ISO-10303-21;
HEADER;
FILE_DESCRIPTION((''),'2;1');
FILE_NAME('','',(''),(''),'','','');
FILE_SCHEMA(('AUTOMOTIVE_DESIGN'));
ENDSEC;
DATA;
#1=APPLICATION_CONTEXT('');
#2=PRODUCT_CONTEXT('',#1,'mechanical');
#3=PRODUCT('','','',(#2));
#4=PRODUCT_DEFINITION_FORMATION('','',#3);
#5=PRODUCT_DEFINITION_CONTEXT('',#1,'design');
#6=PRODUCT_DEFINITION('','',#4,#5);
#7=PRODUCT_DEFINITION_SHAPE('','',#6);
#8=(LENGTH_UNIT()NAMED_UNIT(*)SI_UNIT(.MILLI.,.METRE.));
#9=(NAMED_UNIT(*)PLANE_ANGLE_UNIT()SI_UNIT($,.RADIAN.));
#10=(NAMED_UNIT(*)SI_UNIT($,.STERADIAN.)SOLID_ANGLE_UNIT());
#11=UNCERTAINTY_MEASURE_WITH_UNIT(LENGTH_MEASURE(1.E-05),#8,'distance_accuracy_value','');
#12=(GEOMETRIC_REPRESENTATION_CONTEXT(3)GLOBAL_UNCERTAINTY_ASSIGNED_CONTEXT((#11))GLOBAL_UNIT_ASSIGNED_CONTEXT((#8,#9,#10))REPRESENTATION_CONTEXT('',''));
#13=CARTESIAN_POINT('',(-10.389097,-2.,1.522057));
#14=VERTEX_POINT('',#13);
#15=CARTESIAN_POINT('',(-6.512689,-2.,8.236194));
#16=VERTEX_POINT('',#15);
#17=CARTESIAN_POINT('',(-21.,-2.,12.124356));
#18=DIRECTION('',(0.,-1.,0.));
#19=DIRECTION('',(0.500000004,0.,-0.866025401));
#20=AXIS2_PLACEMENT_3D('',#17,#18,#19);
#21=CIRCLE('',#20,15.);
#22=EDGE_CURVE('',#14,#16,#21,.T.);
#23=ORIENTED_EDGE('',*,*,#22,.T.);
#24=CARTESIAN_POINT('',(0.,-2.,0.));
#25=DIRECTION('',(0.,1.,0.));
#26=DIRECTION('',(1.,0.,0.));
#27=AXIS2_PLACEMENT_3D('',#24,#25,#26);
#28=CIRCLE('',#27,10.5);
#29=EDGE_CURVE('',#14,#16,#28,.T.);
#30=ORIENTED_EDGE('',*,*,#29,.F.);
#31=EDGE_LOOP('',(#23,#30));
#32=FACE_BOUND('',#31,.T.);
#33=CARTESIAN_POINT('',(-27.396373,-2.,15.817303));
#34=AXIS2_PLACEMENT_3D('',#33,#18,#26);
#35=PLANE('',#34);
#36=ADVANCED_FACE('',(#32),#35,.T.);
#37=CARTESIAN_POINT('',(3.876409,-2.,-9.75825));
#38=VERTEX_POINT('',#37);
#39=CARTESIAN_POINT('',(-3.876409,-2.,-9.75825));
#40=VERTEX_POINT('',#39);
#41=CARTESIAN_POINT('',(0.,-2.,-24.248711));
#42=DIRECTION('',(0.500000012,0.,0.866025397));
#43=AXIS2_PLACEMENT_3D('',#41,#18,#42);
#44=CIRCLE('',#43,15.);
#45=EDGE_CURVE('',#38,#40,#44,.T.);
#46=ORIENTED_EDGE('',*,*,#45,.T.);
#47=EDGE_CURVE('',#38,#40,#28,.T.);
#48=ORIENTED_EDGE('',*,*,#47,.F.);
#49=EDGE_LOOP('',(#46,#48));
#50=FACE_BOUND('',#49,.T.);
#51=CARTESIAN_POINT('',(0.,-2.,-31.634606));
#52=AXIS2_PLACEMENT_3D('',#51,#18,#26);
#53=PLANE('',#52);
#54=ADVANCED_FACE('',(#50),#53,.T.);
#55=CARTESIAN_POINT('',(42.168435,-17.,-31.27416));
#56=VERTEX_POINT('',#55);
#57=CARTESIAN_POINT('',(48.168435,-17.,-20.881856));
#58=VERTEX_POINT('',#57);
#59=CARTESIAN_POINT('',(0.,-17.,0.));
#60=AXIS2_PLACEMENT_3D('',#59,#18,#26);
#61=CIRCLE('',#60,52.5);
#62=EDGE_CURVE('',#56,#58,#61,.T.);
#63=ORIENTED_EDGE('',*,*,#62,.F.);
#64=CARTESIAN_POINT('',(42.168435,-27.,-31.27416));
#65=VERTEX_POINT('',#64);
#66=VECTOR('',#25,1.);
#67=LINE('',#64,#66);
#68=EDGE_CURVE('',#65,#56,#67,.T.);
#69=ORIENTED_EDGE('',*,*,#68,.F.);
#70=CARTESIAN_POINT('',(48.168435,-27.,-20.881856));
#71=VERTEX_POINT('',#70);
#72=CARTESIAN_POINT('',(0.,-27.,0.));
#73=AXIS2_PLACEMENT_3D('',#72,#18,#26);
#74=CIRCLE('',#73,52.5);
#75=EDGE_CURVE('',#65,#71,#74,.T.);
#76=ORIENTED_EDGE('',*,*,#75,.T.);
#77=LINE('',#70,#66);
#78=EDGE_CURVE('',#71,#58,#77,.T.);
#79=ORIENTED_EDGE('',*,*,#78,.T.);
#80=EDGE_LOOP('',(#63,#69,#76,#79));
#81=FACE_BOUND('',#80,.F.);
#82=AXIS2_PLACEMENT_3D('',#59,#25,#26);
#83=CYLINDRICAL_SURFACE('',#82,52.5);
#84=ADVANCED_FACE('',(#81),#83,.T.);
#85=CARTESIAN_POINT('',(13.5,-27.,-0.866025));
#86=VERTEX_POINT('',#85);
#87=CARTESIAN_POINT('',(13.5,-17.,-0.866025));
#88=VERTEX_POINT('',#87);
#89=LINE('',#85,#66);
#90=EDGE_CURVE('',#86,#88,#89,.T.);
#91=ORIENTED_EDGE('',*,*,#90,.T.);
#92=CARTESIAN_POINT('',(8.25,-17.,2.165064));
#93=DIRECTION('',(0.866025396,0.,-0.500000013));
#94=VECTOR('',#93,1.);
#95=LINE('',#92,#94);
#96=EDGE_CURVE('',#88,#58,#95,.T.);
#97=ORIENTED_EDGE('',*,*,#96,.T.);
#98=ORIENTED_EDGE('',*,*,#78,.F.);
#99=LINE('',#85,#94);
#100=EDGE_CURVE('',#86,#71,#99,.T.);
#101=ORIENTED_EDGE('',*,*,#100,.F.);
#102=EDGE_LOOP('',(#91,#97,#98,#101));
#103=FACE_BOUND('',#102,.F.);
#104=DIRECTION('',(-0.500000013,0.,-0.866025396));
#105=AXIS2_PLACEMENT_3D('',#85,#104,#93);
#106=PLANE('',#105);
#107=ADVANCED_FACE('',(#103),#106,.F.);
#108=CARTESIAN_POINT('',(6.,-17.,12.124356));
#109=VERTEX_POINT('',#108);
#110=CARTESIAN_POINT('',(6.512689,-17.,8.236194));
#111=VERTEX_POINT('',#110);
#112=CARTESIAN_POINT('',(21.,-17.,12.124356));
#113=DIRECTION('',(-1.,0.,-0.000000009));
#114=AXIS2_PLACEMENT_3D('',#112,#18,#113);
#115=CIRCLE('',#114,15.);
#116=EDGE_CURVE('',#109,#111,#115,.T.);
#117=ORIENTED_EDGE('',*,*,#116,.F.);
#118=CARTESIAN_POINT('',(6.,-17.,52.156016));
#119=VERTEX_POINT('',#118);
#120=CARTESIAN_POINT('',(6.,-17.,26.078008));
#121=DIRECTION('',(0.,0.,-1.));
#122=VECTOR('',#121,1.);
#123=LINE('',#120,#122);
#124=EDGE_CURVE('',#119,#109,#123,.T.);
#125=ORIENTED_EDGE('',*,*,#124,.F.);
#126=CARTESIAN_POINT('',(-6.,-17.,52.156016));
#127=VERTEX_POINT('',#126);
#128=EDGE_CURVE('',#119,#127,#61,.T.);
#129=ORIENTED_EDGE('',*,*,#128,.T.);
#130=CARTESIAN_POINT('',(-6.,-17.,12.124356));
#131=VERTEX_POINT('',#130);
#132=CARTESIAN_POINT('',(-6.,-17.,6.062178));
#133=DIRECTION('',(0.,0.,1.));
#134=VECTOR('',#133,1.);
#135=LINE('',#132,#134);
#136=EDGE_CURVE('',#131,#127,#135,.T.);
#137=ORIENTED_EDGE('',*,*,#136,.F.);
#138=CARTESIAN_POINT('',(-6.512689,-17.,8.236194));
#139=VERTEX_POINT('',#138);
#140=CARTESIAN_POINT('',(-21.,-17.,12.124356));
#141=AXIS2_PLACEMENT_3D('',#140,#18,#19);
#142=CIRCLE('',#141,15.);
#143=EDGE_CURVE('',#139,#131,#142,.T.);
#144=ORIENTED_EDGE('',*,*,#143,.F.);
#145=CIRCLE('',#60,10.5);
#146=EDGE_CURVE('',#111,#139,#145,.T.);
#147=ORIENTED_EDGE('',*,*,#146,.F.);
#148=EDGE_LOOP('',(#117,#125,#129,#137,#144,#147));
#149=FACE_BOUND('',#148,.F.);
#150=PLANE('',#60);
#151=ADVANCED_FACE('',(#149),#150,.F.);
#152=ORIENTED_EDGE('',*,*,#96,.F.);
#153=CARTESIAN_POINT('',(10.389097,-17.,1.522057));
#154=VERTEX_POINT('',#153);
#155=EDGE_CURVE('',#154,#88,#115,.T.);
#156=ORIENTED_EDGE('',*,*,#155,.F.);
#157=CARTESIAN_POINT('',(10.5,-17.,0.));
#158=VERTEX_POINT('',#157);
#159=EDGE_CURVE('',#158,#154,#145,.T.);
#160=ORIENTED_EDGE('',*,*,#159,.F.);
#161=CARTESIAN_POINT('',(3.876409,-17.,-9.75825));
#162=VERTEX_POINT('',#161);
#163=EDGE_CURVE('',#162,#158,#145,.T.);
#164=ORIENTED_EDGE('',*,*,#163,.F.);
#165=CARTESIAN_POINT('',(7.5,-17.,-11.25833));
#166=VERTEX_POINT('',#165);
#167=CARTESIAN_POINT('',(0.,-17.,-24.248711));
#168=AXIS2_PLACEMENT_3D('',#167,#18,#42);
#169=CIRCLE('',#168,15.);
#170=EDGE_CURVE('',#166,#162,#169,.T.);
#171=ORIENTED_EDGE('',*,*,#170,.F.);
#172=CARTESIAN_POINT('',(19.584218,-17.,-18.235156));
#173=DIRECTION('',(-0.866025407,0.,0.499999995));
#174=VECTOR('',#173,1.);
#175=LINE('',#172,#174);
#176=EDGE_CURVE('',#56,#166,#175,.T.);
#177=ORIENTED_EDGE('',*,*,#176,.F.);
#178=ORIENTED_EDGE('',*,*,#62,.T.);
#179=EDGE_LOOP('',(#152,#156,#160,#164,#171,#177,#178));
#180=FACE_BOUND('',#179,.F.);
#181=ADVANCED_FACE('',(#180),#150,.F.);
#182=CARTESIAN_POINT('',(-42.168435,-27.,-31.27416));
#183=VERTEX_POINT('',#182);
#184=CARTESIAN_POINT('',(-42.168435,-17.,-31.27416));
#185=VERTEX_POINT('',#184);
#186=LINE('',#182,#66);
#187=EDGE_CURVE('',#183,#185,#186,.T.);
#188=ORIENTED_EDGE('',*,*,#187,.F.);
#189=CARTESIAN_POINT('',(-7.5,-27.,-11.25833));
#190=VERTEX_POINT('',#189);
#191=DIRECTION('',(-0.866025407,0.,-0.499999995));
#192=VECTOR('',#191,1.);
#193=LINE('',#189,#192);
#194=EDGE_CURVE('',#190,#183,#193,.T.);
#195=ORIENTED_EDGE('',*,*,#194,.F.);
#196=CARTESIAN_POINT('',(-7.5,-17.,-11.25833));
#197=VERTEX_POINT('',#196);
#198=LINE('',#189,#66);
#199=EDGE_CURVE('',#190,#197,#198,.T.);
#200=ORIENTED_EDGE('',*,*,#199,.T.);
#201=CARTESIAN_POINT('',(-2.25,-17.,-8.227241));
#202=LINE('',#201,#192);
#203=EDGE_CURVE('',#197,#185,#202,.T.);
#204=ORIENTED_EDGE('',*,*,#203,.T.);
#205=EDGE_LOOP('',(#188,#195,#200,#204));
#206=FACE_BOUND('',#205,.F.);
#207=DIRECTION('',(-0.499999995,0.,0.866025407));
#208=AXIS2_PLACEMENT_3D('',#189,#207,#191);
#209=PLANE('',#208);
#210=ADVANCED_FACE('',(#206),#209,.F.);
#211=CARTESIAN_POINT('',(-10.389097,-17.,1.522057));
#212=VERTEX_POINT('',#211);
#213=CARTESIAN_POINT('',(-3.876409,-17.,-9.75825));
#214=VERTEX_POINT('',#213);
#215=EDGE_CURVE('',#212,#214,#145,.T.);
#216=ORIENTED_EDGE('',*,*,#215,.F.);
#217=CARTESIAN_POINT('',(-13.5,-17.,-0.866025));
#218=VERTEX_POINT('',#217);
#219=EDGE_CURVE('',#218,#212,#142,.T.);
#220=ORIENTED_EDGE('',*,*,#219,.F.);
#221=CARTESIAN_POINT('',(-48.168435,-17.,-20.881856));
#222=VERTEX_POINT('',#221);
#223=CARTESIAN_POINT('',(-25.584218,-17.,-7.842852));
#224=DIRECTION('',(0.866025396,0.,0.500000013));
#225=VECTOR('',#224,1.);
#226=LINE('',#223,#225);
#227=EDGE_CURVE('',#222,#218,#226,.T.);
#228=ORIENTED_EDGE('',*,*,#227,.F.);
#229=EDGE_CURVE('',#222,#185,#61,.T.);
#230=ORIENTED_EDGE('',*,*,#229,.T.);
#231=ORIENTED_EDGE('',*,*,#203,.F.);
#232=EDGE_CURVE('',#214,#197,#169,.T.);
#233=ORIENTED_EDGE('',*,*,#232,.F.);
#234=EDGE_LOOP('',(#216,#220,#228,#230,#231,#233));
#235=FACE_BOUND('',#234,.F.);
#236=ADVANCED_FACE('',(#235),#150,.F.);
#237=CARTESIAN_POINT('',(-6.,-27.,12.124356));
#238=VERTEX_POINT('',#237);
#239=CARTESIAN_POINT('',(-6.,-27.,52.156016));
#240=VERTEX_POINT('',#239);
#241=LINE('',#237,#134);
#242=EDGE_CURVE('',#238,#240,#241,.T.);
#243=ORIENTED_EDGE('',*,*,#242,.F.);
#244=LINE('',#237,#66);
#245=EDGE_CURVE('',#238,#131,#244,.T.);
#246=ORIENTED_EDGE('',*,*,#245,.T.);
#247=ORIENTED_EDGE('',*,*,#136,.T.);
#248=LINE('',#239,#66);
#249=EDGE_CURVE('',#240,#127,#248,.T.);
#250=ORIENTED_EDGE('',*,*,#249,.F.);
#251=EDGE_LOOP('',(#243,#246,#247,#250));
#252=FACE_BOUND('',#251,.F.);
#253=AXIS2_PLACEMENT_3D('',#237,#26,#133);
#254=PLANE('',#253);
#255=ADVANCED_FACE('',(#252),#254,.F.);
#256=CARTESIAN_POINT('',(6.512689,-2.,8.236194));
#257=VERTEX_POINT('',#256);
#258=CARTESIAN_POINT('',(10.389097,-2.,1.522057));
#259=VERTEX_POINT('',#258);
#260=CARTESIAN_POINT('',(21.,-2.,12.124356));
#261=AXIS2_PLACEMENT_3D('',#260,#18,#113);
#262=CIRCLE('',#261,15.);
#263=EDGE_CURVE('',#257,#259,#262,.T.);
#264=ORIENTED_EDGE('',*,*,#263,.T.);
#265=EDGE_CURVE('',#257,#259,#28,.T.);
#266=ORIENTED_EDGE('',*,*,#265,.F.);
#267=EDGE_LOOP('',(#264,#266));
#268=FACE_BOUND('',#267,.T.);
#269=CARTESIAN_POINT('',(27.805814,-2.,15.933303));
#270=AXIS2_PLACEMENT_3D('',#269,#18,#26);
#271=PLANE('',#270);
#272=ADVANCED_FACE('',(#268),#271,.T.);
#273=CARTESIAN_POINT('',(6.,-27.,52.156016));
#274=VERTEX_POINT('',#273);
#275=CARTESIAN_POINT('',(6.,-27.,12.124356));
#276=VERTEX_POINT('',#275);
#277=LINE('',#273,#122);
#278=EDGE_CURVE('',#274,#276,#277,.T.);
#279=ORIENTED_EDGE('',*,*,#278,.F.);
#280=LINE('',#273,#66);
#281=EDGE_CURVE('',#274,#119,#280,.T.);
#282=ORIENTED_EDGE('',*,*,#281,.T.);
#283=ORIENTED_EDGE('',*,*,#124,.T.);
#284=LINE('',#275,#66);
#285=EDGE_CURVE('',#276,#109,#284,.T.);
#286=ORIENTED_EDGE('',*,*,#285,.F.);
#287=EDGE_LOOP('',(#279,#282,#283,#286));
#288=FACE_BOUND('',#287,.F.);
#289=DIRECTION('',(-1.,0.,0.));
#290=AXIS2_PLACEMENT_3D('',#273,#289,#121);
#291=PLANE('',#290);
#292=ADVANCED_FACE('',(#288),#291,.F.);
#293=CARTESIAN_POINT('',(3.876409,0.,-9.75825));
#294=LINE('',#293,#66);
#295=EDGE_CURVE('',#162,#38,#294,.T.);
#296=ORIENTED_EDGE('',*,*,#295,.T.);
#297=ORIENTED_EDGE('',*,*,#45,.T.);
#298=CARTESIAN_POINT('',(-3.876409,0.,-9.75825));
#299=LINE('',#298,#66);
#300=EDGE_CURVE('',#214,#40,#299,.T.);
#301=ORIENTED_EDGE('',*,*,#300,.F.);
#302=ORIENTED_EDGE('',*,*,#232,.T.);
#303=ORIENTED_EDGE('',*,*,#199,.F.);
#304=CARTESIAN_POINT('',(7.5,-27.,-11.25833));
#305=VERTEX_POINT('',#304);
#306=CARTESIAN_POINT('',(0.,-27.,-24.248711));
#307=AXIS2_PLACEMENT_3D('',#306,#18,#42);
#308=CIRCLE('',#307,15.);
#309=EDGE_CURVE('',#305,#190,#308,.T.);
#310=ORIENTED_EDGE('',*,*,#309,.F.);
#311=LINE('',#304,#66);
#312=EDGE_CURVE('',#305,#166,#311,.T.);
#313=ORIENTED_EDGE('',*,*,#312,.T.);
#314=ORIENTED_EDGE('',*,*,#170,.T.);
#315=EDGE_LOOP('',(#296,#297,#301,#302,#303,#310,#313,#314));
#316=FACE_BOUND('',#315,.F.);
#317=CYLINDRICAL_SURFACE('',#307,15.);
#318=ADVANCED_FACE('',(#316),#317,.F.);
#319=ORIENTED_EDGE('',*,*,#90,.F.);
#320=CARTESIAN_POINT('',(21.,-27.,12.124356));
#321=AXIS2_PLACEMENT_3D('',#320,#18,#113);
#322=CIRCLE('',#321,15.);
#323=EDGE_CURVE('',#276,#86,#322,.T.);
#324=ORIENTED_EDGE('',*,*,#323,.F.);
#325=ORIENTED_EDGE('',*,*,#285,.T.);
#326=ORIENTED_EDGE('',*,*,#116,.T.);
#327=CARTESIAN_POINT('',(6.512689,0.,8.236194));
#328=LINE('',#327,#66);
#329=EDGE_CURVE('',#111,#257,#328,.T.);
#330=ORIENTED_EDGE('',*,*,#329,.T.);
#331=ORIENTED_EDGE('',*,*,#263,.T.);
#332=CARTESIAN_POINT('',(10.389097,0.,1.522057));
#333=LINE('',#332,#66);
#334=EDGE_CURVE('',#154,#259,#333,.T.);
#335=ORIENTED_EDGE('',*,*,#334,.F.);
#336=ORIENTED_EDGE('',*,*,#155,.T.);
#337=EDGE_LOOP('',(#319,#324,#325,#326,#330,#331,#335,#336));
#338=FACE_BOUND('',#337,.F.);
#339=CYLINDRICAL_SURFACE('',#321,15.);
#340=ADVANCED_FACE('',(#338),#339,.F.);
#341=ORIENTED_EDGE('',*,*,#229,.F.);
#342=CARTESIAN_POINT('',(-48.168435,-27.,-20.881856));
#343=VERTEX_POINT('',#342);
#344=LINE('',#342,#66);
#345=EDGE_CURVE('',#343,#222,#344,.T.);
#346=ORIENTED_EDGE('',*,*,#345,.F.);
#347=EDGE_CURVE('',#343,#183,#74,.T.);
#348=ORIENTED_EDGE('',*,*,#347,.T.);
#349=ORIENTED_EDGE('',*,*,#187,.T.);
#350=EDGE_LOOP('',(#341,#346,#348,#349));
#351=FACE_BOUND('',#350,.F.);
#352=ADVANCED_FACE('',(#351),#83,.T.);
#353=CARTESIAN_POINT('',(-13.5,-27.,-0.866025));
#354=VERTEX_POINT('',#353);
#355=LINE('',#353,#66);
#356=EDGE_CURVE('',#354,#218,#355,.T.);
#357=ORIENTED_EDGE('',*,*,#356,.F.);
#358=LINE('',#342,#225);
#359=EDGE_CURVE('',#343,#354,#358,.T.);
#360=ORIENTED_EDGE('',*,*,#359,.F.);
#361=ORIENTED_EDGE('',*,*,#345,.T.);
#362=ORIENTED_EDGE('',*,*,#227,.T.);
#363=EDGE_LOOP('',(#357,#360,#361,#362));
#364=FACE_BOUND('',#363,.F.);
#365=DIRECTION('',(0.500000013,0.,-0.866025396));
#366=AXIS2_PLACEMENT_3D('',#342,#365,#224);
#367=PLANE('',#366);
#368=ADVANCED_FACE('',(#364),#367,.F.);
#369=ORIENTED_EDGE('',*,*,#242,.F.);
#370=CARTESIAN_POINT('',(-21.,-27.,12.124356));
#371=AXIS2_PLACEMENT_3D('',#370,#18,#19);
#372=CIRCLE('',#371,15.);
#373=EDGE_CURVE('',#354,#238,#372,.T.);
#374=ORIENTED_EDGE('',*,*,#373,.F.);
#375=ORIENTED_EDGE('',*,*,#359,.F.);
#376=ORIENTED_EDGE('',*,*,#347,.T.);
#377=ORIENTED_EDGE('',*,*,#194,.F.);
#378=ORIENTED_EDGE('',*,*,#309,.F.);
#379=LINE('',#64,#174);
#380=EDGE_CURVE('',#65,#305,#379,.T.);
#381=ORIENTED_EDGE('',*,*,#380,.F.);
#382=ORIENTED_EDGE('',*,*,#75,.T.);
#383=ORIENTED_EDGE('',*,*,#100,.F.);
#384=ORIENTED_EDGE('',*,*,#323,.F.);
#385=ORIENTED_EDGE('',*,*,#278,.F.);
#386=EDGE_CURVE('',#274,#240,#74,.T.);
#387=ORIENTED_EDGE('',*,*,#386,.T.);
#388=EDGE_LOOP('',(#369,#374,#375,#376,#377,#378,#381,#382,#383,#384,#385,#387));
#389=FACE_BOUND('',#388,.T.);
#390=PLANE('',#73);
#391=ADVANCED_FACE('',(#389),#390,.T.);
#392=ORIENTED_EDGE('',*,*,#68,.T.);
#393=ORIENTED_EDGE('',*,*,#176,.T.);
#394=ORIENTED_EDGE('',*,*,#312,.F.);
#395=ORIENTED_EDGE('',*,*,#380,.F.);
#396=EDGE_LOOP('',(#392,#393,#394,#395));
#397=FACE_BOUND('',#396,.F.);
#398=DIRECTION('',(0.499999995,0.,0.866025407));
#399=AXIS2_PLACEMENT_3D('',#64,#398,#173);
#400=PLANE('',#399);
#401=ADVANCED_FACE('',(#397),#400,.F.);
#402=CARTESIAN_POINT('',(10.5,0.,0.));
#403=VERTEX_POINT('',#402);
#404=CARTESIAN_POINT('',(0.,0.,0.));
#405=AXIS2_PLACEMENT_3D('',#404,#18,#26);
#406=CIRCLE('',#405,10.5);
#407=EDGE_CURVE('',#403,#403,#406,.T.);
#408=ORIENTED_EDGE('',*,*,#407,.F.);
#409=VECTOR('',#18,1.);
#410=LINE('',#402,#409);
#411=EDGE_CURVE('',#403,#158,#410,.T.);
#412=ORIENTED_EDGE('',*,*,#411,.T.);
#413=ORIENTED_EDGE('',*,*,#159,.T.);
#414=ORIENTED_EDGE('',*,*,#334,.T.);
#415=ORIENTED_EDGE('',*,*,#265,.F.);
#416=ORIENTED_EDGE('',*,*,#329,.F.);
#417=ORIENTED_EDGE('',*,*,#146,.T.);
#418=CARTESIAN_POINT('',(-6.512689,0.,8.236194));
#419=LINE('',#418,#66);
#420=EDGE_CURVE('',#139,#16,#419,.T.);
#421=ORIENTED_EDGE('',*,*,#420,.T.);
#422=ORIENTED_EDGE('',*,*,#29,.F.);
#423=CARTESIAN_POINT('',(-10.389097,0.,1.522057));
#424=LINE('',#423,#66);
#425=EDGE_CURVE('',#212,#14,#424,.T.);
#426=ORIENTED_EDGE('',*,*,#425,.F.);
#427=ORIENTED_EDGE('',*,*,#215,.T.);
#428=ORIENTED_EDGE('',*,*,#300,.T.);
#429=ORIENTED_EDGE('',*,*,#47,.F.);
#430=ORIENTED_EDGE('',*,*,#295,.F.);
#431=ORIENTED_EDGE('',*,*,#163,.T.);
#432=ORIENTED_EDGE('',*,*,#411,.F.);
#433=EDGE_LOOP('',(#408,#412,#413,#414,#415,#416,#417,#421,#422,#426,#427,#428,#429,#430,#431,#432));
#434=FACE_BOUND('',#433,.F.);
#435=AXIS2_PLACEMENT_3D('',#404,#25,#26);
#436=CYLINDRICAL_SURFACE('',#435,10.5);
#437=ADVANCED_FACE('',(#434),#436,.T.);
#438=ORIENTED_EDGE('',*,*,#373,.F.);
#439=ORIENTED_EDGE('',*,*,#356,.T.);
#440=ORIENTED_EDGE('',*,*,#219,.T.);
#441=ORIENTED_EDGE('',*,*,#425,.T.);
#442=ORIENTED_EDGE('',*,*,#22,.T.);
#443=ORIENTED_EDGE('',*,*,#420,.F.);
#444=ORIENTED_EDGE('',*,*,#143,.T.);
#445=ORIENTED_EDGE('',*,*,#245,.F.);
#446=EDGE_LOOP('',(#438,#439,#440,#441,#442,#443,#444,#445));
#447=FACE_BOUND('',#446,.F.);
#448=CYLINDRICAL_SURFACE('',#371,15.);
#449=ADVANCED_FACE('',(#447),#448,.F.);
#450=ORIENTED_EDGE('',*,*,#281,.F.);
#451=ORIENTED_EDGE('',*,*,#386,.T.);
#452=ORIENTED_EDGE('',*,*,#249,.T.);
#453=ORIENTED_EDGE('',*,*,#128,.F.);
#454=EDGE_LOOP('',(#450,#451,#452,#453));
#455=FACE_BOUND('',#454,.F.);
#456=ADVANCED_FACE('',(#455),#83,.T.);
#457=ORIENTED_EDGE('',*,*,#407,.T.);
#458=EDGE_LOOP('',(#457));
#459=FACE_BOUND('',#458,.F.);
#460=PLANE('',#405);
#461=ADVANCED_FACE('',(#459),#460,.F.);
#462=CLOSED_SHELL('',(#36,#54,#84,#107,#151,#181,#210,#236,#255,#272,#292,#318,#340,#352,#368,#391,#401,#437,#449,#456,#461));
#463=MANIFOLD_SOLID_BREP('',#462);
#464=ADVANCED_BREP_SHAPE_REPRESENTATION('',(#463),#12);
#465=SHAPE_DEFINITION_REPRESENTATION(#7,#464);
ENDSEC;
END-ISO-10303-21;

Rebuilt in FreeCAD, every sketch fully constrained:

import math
import FreeCAD as App
import Part
import Sketcher
from FreeCAD import Vector
Q = App.Units.Quantity

doc = App.newDocument("Part")
body = doc.addObject("PartDesign::Body", "Body")

# Sketch on XZ plane
sketch1 = doc.addObject("Sketcher::SketchObject", "Sketch")
body.addObject(sketch1)
sketch1.AttachmentSupport = (doc.XZ_Plane, [""])
sketch1.MapMode = "FlatFace"
sketch1.addGeometry(Part.Circle(Vector(0, 0, 0), Vector(0, 0, 1), 10), False)
sketch1.addConstraint([
    Sketcher.Constraint("Coincident", 0, 3, -1, 1),
    Sketcher.Constraint("Diameter", 0, 21.0),
])
pad1 = doc.addObject("PartDesign::Pad", "Pad")
body.addObject(pad1)
pad1.Profile = sketch1
pad1.Length = 17

# Sketch on XZ plane
sketch2 = doc.addObject("Sketcher::SketchObject", "Sketch001")
body.addObject(sketch2)
sketch2.AttachmentSupport = (doc.XZ_Plane, [""])
sketch2.MapMode = "FlatFace"
sketch2.AttachmentOffset = App.Placement(Vector(0, 0, 17), App.Rotation())
sketch2.addGeometry(Part.Circle(Vector(0, 0, 0), Vector(0, 0, 1), 52), False)
sketch2.addConstraint([
    Sketcher.Constraint("Coincident", 0, 3, -1, 1),
    Sketcher.Constraint("Diameter", 0, 105.0),
])
pad2 = doc.addObject("PartDesign::Pad", "Pad001")
body.addObject(pad2)
pad2.Profile = sketch2
pad2.Length = 10

# Sketch on XZ plane
sketch3 = doc.addObject("Sketcher::SketchObject", "Sketch002")
body.addObject(sketch3)
sketch3.AttachmentSupport = (doc.XZ_Plane, [""])
sketch3.MapMode = "FlatFace"
sketch3.AttachmentOffset = App.Placement(Vector(0, 0, 27), App.Rotation())
sketch3.addGeometry([
    Part.ArcOfCircle(Part.Circle(Vector(-21, 12, 0), Vector(0, 0, 1), 15), math.radians(-60), math.radians(0)),  # 0
    Part.LineSegment(Vector(-6, 12, 0), Vector(-6, 52, 0)),  # 1
    Part.ArcOfCircle(Part.Circle(Vector(0, 0, 0), Vector(0, 0, 1), 53), math.radians(97), math.radians(203)),  # 2
    Part.LineSegment(Vector(-48, -21, 0), Vector(-14, -1, 0)),  # 3
    Part.ArcOfCircle(Part.Circle(Vector(0, 0, 0), Vector(0, 0, 1), 53), math.radians(0), math.radians(83)),  # 4
    Part.LineSegment(Vector(6, 52, 0), Vector(6, 12, 0)),  # 5
    Part.ArcOfCircle(Part.Circle(Vector(21, 12, 0), Vector(0, 0, 1), 15), math.radians(-180), math.radians(-120)),  # 6
    Part.LineSegment(Vector(14, -1, 0), Vector(48, -21, 0)),  # 7
    Part.ArcOfCircle(Part.Circle(Vector(0, 0, 0), Vector(0, 0, 1), 53), math.radians(-23), math.radians(0)),  # 8
    Part.LineSegment(Vector(-8, -11, 0), Vector(-42, -31, 0)),  # 9
    Part.ArcOfCircle(Part.Circle(Vector(0, 0, 0), Vector(0, 0, 1), 52), math.radians(-143), math.radians(-37)),  # 10
    Part.LineSegment(Vector(42, -31, 0), Vector(8, -11, 0)),  # 11
    Part.ArcOfCircle(Part.Circle(Vector(0, -24, 0), Vector(0, 0, 1), 15), math.radians(60), math.radians(120)),  # 12
], False)
sketch3.addConstraint([
    Sketcher.Constraint("Tangent", 0, 2, 1, 1),
    Sketcher.Constraint("Coincident", 1, 2, 2, 1),
    Sketcher.Constraint("Coincident", 2, 2, 3, 1),
    Sketcher.Constraint("Tangent", 3, 2, 0, 1),
    Sketcher.Constraint("Coincident", 4, 2, 5, 1),
    Sketcher.Constraint("Tangent", 5, 2, 6, 1),
    Sketcher.Constraint("Tangent", 6, 2, 7, 1),
    Sketcher.Constraint("Coincident", 7, 2, 8, 1),
    Sketcher.Constraint("Tangent", 8, 2, 4, 1),
    Sketcher.Constraint("Coincident", 9, 2, 10, 1),
    Sketcher.Constraint("Coincident", 10, 2, 11, 1),
    Sketcher.Constraint("Tangent", 11, 2, 12, 1),
    Sketcher.Constraint("Tangent", 12, 2, 9, 1),
    Sketcher.Constraint("Vertical", 1),
    Sketcher.Constraint("Vertical", 5),
    Sketcher.Constraint("Coincident", 2, 3, -1, 1),
    Sketcher.Constraint("Coincident", 4, 3, -1, 1),
    Sketcher.Constraint("Coincident", 10, 3, -1, 1),
    Sketcher.Constraint("Equal", 2, 4),
    Sketcher.Constraint("Equal", 0, 6),
    Sketcher.Constraint("Equal", 4, 10),
    Sketcher.Constraint("Equal", 6, 12),
    Sketcher.Constraint("Symmetric", 0, 3, 6, 3, -2),
    Sketcher.Constraint("Symmetric", 2, 2, 7, 2, -2),
    Sketcher.Constraint("Symmetric", 11, 2, 12, 2, -2),
    Sketcher.Constraint("PointOnObject", 8, 2, -1),
    Sketcher.Constraint("Parallel", 3, 9),
    Sketcher.Constraint("Equal", 7, 9),
    Sketcher.Constraint("Radius", 0, 15.0),
    Sketcher.Constraint("Radius", 2, 52.5),
    Sketcher.Constraint("Angle", 3, Q("30.000001 deg")),
    Sketcher.Constraint("DistanceX", 0, 3, -1, 1, 21.0),
    Sketcher.Constraint("DistanceY", 1, 1, 1, 2, 40.03166),
])
pocket1 = doc.addObject("PartDesign::Pocket", "Pocket")
body.addObject(pocket1)
pocket1.Profile = sketch3
pocket1.Length = 25

doc.recompute()
